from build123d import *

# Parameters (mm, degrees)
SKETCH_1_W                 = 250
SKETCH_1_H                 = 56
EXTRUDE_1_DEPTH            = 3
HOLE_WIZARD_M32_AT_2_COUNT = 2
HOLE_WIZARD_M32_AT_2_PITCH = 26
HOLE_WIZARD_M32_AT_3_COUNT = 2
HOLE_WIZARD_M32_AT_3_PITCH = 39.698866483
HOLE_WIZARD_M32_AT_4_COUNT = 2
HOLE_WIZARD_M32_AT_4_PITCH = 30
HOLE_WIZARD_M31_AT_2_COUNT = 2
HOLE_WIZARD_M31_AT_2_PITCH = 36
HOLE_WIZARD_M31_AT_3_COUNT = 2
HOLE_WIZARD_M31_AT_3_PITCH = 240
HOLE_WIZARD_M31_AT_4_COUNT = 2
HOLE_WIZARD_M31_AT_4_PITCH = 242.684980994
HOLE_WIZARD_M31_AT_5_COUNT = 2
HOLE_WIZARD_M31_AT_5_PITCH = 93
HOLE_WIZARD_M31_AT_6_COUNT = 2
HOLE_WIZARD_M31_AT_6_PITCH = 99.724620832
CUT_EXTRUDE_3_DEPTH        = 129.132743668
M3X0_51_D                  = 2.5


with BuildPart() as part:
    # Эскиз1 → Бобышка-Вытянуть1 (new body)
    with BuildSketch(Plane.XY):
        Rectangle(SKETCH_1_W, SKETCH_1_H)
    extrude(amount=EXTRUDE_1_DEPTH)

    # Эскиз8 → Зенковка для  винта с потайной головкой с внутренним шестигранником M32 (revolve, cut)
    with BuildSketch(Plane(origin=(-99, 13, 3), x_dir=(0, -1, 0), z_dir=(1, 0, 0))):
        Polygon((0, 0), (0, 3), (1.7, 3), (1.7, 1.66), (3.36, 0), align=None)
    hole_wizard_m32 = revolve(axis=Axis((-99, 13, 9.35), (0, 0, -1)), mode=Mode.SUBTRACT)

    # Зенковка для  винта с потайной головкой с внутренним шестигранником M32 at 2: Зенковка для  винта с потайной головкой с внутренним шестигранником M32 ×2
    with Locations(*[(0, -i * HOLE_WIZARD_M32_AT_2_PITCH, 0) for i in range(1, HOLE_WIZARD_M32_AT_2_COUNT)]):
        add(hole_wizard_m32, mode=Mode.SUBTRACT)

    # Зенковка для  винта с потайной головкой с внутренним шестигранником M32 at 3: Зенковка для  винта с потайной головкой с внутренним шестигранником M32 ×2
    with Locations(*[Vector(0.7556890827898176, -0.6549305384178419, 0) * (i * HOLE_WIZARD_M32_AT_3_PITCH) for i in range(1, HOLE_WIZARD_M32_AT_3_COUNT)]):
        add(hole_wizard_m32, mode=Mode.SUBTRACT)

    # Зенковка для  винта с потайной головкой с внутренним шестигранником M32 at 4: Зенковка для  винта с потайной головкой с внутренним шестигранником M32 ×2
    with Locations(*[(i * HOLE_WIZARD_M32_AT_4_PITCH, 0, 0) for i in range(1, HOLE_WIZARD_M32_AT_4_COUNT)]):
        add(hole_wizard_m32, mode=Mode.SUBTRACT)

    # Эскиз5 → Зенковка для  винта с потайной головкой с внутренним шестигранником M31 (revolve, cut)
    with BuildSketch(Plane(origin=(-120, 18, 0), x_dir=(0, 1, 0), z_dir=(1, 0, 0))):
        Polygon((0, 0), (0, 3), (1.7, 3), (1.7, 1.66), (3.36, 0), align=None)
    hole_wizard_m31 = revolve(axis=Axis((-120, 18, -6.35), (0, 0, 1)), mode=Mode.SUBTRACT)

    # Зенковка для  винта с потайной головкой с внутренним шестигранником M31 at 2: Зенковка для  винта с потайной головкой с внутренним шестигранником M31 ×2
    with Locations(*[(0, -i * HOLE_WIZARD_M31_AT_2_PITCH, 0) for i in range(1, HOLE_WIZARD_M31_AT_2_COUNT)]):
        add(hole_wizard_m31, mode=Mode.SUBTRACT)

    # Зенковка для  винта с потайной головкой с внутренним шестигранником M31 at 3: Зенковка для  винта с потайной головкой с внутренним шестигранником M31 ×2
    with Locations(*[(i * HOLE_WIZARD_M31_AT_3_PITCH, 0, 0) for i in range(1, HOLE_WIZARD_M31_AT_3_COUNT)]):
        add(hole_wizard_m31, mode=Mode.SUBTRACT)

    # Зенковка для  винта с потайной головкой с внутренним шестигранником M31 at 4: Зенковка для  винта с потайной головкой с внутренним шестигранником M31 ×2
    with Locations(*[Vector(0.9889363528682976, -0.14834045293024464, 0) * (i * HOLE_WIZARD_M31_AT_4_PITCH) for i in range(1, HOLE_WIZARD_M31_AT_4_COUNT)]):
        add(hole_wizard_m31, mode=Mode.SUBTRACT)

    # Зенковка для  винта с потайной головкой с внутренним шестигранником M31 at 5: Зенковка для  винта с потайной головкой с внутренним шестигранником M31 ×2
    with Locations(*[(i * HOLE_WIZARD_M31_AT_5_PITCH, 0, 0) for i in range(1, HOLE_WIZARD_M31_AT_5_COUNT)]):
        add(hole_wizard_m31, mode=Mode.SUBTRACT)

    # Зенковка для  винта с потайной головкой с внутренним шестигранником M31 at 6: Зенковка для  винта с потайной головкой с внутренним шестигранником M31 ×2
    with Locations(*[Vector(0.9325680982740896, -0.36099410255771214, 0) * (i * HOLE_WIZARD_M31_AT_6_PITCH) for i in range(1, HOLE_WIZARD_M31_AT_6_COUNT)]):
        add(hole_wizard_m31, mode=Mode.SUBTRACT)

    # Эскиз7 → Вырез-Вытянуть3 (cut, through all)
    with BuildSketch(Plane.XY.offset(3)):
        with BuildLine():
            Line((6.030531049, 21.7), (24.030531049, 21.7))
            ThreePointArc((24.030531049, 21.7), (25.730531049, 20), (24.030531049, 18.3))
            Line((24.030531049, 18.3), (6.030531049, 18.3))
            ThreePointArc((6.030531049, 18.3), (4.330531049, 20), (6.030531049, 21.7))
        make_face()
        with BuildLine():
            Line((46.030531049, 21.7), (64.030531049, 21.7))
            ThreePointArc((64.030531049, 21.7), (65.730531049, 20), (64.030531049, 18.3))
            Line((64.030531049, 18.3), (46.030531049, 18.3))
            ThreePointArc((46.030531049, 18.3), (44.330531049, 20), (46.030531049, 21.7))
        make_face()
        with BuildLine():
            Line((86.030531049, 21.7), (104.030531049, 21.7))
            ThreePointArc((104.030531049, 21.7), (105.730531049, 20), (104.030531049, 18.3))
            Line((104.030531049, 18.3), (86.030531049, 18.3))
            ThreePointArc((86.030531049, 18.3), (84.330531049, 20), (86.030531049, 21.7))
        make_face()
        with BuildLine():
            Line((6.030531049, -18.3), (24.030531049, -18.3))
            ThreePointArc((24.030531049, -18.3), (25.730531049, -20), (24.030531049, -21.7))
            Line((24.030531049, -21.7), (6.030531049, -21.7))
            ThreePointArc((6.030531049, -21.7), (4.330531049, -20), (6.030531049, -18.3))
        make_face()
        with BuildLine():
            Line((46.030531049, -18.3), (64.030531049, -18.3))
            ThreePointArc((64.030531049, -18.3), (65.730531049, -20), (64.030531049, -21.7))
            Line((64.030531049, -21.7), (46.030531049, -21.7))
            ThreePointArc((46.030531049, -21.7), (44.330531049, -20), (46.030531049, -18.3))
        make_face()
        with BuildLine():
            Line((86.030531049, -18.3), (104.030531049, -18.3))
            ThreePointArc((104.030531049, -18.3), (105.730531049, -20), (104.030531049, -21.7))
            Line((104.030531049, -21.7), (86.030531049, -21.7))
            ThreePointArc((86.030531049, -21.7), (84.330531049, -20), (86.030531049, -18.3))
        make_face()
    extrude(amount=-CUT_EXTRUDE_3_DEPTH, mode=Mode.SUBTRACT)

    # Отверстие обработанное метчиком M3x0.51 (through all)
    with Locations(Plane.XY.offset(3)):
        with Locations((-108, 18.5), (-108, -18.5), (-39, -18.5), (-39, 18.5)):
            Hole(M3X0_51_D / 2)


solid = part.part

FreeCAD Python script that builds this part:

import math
import FreeCAD as App
import Part
import Sketcher
Q = App.Units.Quantity


def add_polygon(sketch, points):
    """Adds a closed chain of lines whose ends are joined by coincident constraints."""
    first, n = sketch.GeometryCount, len(points)
    for a, b in zip(points, points[1:] + points[:1]):
        sketch.addGeometry(Part.LineSegment(App.Vector(*a, 0), App.Vector(*b, 0)), False)
    for i in range(n):
        sketch.addConstraint(Sketcher.Constraint("Coincident", first + i, 2, first + (i + 1) % n, 1))

doc = App.newDocument("Part")
params = doc.addObject("Spreadsheet::Sheet", "Params")
for row, (alias, value) in enumerate([
    ("sketch1_width", "250 mm"),
    ("sketch1_height", "56 mm"),
    ("pad1_length", "3 mm"),
    ("sketch2_height", "3 mm"),
    ("sketch2_width", "1.7 mm"),
    ("sketch2_width2", "3.36 mm"),
    ("groove_angle", "360 deg"),
    ("linearpattern_pitch", "26 mm"),
    ("linearpattern2_pitch", "39.698866 mm"),
    ("linearpattern3_pitch", "30 mm"),
    ("sketch3_height", "3 mm"),
    ("sketch3_width", "1.7 mm"),
    ("sketch3_width2", "3.36 mm"),
    ("groove2_angle", "360 deg"),
    ("linearpattern4_pitch", "36 mm"),
    ("linearpattern5_pitch", "240 mm"),
    ("linearpattern6_pitch", "242.684981 mm"),
    ("linearpattern7_pitch", "93 mm"),
    ("linearpattern8_pitch", "99.724621 mm"),
    ("sketch4_radius", "1.7 mm"),
    ("sketch4_width", "18 mm"),
    ("sketch5_diameter", "2.5 mm"),
    ("hole_diameter", "2.5 mm"),
], start=1):
    params.set(f"A{row}", alias)
    params.set(f"B{row}", "=" + value)
    params.setAlias(f"B{row}", alias)

body = doc.addObject("PartDesign::Body", "Body")

sketch1 = doc.addObject("Sketcher::SketchObject", "Sketch")
body.addObject(sketch1)
sketch1.AttachmentSupport = (doc.XY_Plane, [""])
sketch1.MapMode = "FlatFace"
add_polygon(sketch1, [(-125, 28), (-125, -28), (125, -28), (125, 28)])
sketch1.addConstraint([
    Sketcher.Constraint("Vertical", 0),
    Sketcher.Constraint("Horizontal", 1),
    Sketcher.Constraint("Vertical", 2),
    Sketcher.Constraint("Horizontal", 3),
    Sketcher.Constraint("Symmetric", 0, 2, 2, 2, -1, 1),
    Sketcher.Constraint("DistanceX", 1, 1, 1, 2, Q("250 mm")),
    Sketcher.Constraint("DistanceY", 0, 2, 0, 1, Q("56 mm")),
])
sketch1.setExpression("Constraints[9]", "Params.sketch1_width")
sketch1.setExpression("Constraints[10]", "Params.sketch1_height")
pad1 = doc.addObject("PartDesign::Pad", "Pad")
body.addObject(pad1)
pad1.Profile = sketch1
pad1.setExpression("Length", "Params.pad1_length")

sketch2 = doc.addObject("Sketcher::SketchObject", "Sketch001")
body.addObject(sketch2)
sketch2.AttachmentSupport = (doc.YZ_Plane, [""])
sketch2.MapMode = "FlatFace"
sketch2.AttachmentOffset = App.Placement(App.Vector(0, 0, -99), App.Rotation())
add_polygon(sketch2, [(13, 0), (13, 3), (9.64, 3), (11.3, 1.34), (11.3, 0)])
sketch2.addGeometry(Part.LineSegment(App.Vector(13, 3, 0), App.Vector(13, 0, 0)), True)
sketch2.addConstraint([
    Sketcher.Constraint("Vertical", 0),
    Sketcher.Constraint("Horizontal", 1),
    Sketcher.Constraint("Vertical", 3),
    Sketcher.Constraint("Horizontal", 4),
    Sketcher.Constraint("Vertical", 5),
    Sketcher.Constraint("Coincident", 5, 1, 0, 2),
    Sketcher.Constraint("PointOnObject", 3, 2, -1),
    Sketcher.Constraint("PointOnObject", 5, 2, -1),
    Sketcher.Constraint("DistanceY", 0, 1, 0, 2, Q("3 mm")),
    Sketcher.Constraint("Angle", 2, Q("-45 deg")),
    Sketcher.Constraint("DistanceX", 4, 1, 4, 2, Q("1.7 mm")),
    Sketcher.Constraint("DistanceX", -1, 1, 0, 2, Q("13 mm")),
    Sketcher.Constraint("DistanceX", 1, 2, 1, 1, Q("3.36 mm")),
])
sketch2.setExpression("Constraints[13]", "Params.sketch2_height")
sketch2.setExpression("Constraints[15]", "Params.sketch2_width")
sketch2.setExpression("Constraints[17]", "Params.sketch2_width2")
groove = doc.addObject("PartDesign::Groove", "Groove")
body.addObject(groove)
groove.Profile = sketch2
groove.ReferenceAxis = (sketch2, ["Axis0"])
groove.setExpression("Angle", "Params.groove_angle")
doc.recompute()

linearpattern = doc.addObject("PartDesign::LinearPattern", "LinearPattern")
body.addObject(linearpattern)
linearpattern.Originals = [groove]
linearpattern.Direction = (doc.Y_Axis, [""])
linearpattern.Mode = "offset"
linearpattern.setExpression("Offset", "Params.linearpattern_pitch")
linearpattern.Occurrences = 2
linearpattern.Reversed = True
body.Tip = linearpattern
doc.recompute()

datumline = doc.addObject("PartDesign::Line", "DatumLine")
body.addObject(datumline)
datumline.Placement = App.Placement(App.Vector(0, 0, 0), App.Rotation(App.Vector(0, 0, 1), App.Vector(0.755689083, -0.654930538, 0)))
linearpattern2 = doc.addObject("PartDesign::LinearPattern", "LinearPattern001")
body.addObject(linearpattern2)
linearpattern2.Originals = [groove]
linearpattern2.Direction = (datumline, [""])
linearpattern2.Mode = "offset"
linearpattern2.setExpression("Offset", "Params.linearpattern2_pitch")
linearpattern2.Occurrences = 2
body.Tip = linearpattern2
doc.recompute()

linearpattern3 = doc.addObject("PartDesign::LinearPattern", "LinearPattern002")
body.addObject(linearpattern3)
linearpattern3.Originals = [groove]
linearpattern3.Direction = (doc.X_Axis, [""])
linearpattern3.Mode = "offset"
linearpattern3.setExpression("Offset", "Params.linearpattern3_pitch")
linearpattern3.Occurrences = 2
body.Tip = linearpattern3

sketch3 = doc.addObject("Sketcher::SketchObject", "Sketch002")
body.addObject(sketch3)
sketch3.AttachmentSupport = (doc.YZ_Plane, [""])
sketch3.MapMode = "FlatFace"
sketch3.AttachmentOffset = App.Placement(App.Vector(0, 0, -120), App.Rotation())
add_polygon(sketch3, [(18, 3), (18, 0), (21.36, 0), (19.7, 1.66), (19.7, 3)])
sketch3.addGeometry(Part.LineSegment(App.Vector(18, 0, 0), App.Vector(18, 3, 0)), True)
sketch3.addConstraint([
    Sketcher.Constraint("Vertical", 0),
    Sketcher.Constraint("Horizontal", 1),
    Sketcher.Constraint("Vertical", 3),
    Sketcher.Constraint("Horizontal", 4),
    Sketcher.Constraint("Vertical", 5),
    Sketcher.Constraint("Coincident", 5, 1, 0, 2),
    Sketcher.Constraint("PointOnObject", 0, 2, -1),
    Sketcher.Constraint("Horizontal", 3, 2, 5, 2),
    Sketcher.Constraint("DistanceY", 0, 2, 0, 1, Q("3 mm")),
    Sketcher.Constraint("Angle", 2, Q("135 deg")),
    Sketcher.Constraint("DistanceX", 4, 2, 4, 1, Q("1.7 mm")),
    Sketcher.Constraint("DistanceX", -1, 1, 0, 2, Q("18 mm")),
    Sketcher.Constraint("DistanceX", 1, 1, 1, 2, Q("3.36 mm")),
])
sketch3.setExpression("Constraints[13]", "Params.sketch3_height")
sketch3.setExpression("Constraints[15]", "Params.sketch3_width")
sketch3.setExpression("Constraints[17]", "Params.sketch3_width2")
groove2 = doc.addObject("PartDesign::Groove", "Groove001")
body.addObject(groove2)
groove2.Profile = sketch3
groove2.ReferenceAxis = (sketch3, ["Axis0"])
groove2.setExpression("Angle", "Params.groove2_angle")
doc.recompute()

linearpattern4 = doc.addObject("PartDesign::LinearPattern", "LinearPattern003")
body.addObject(linearpattern4)
linearpattern4.Originals = [groove2]
linearpattern4.Direction = (doc.Y_Axis, [""])
linearpattern4.Mode = "offset"
linearpattern4.setExpression("Offset", "Params.linearpattern4_pitch")
linearpattern4.Occurrences = 2
linearpattern4.Reversed = True
body.Tip = linearpattern4
doc.recompute()

linearpattern5 = doc.addObject("PartDesign::LinearPattern", "LinearPattern004")
body.addObject(linearpattern5)
linearpattern5.Originals = [groove2]
linearpattern5.Direction = (doc.X_Axis, [""])
linearpattern5.Mode = "offset"
linearpattern5.setExpression("Offset", "Params.linearpattern5_pitch")
linearpattern5.Occurrences = 2
body.Tip = linearpattern5
doc.recompute()

datumline2 = doc.addObject("PartDesign::Line", "DatumLine001")
body.addObject(datumline2)
datumline2.Placement = App.Placement(App.Vector(0, 0, 0), App.Rotation(App.Vector(0, 0, 1), App.Vector(0.988936353, -0.148340453, 0)))
linearpattern6 = doc.addObject("PartDesign::LinearPattern", "LinearPattern005")
body.addObject(linearpattern6)
linearpattern6.Originals = [groove2]
linearpattern6.Direction = (datumline2, [""])
linearpattern6.Mode = "offset"
linearpattern6.setExpression("Offset", "Params.linearpattern6_pitch")
linearpattern6.Occurrences = 2
body.Tip = linearpattern6
doc.recompute()

linearpattern7 = doc.addObject("PartDesign::LinearPattern", "LinearPattern006")
body.addObject(linearpattern7)
linearpattern7.Originals = [groove2]
linearpattern7.Direction = (doc.X_Axis, [""])
linearpattern7.Mode = "offset"
linearpattern7.setExpression("Offset", "Params.linearpattern7_pitch")
linearpattern7.Occurrences = 2
body.Tip = linearpattern7
doc.recompute()

datumline3 = doc.addObject("PartDesign::Line", "DatumLine002")
body.addObject(datumline3)
datumline3.Placement = App.Placement(App.Vector(0, 0, 0), App.Rotation(App.Vector(0, 0, 1), App.Vector(0.932568098, -0.360994103, 0)))
linearpattern8 = doc.addObject("PartDesign::LinearPattern", "LinearPattern007")
body.addObject(linearpattern8)
linearpattern8.Originals = [groove2]
linearpattern8.Direction = (datumline3, [""])
linearpattern8.Mode = "offset"
linearpattern8.setExpression("Offset", "Params.linearpattern8_pitch")
linearpattern8.Occurrences = 2
body.Tip = linearpattern8

sketch4 = doc.addObject("Sketcher::SketchObject", "Sketch003")
body.addObject(sketch4)
sketch4.AttachmentSupport = (doc.XY_Plane, [""])
sketch4.MapMode = "FlatFace"
sketch4.AttachmentOffset = App.Placement(App.Vector(0, 0, 3), App.Rotation())
sketch4.addGeometry([
    Part.LineSegment(App.Vector(24.030531, 21.7, 0), App.Vector(6.030531, 21.7, 0)),
    Part.ArcOfCircle(Part.Circle(App.Vector(6.030531, 20, 0), App.Vector(0, 0, 1), 1.7), math.radians(90), math.radians(270)),
    Part.LineSegment(App.Vector(6.030531, 18.3, 0), App.Vector(24.030531, 18.3, 0)),
    Part.ArcOfCircle(Part.Circle(App.Vector(24.030531, 20, 0), App.Vector(0, 0, 1), 1.7), math.radians(-90), math.radians(90)),
    Part.LineSegment(App.Vector(64.030531, 21.7, 0), App.Vector(46.030531, 21.7, 0)),
    Part.ArcOfCircle(Part.Circle(App.Vector(46.030531, 20, 0), App.Vector(0, 0, 1), 1.7), math.radians(90), math.radians(270)),
    Part.LineSegment(App.Vector(46.030531, 18.3, 0), App.Vector(64.030531, 18.3, 0)),
    Part.ArcOfCircle(Part.Circle(App.Vector(64.030531, 20, 0), App.Vector(0, 0, 1), 1.7), math.radians(-90), math.radians(90)),
    Part.LineSegment(App.Vector(104.030531, 21.7, 0), App.Vector(86.030531, 21.7, 0)),
    Part.ArcOfCircle(Part.Circle(App.Vector(86.030531, 20, 0), App.Vector(0, 0, 1), 1.7), math.radians(90), math.radians(270)),
    Part.LineSegment(App.Vector(86.030531, 18.3, 0), App.Vector(104.030531, 18.3, 0)),
    Part.ArcOfCircle(Part.Circle(App.Vector(104.030531, 20, 0), App.Vector(0, 0, 1), 1.7), math.radians(-90), math.radians(90)),
    Part.LineSegment(App.Vector(24.030531, -18.3, 0), App.Vector(6.030531, -18.3, 0)),
    Part.ArcOfCircle(Part.Circle(App.Vector(6.030531, -20, 0), App.Vector(0, 0, 1), 1.7), math.radians(90), math.radians(270)),
    Part.LineSegment(App.Vector(6.030531, -21.7, 0), App.Vector(24.030531, -21.7, 0)),
    Part.ArcOfCircle(Part.Circle(App.Vector(24.030531, -20, 0), App.Vector(0, 0, 1), 1.7), math.radians(-90), math.radians(90)),
    Part.LineSegment(App.Vector(64.030531, -18.3, 0), App.Vector(46.030531, -18.3, 0)),
    Part.ArcOfCircle(Part.Circle(App.Vector(46.030531, -20, 0), App.Vector(0, 0, 1), 1.7), math.radians(90), math.radians(270)),
    Part.LineSegment(App.Vector(46.030531, -21.7, 0), App.Vector(64.030531, -21.7, 0)),
    Part.ArcOfCircle(Part.Circle(App.Vector(64.030531, -20, 0), App.Vector(0, 0, 1), 1.7), math.radians(-90), math.radians(90)),
    Part.LineSegment(App.Vector(104.030531, -18.3, 0), App.Vector(86.030531, -18.3, 0)),
    Part.ArcOfCircle(Part.Circle(App.Vector(86.030531, -20, 0), App.Vector(0, 0, 1), 1.7), math.radians(90), math.radians(270)),
    Part.LineSegment(App.Vector(86.030531, -21.7, 0), App.Vector(104.030531, -21.7, 0)),
    Part.ArcOfCircle(Part.Circle(App.Vector(104.030531, -20, 0), App.Vector(0, 0, 1), 1.7), math.radians(-90), math.radians(90)),
], False)
sketch4.addConstraint([
    Sketcher.Constraint("Tangent", 0, 2, 1, 1),
    Sketcher.Constraint("Tangent", 1, 2, 2, 1),
    Sketcher.Constraint("Tangent", 2, 2, 3, 1),
    Sketcher.Constraint("Tangent", 3, 2, 0, 1),
    Sketcher.Constraint("Tangent", 4, 2, 5, 1),
    Sketcher.Constraint("Tangent", 5, 2, 6, 1),
    Sketcher.Constraint("Tangent", 6, 2, 7, 1),
    Sketcher.Constraint("Tangent", 7, 2, 4, 1),
    Sketcher.Constraint("Tangent", 8, 2, 9, 1),
    Sketcher.Constraint("Tangent", 9, 2, 10, 1),
    Sketcher.Constraint("Tangent", 10, 2, 11, 1),
    Sketcher.Constraint("Tangent", 11, 2, 8, 1),
    Sketcher.Constraint("Tangent", 12, 2, 13, 1),
    Sketcher.Constraint("Tangent", 13, 2, 14, 1),
    Sketcher.Constraint("Tangent", 14, 2, 15, 1),
    Sketcher.Constraint("Tangent", 15, 2, 12, 1),
    Sketcher.Constraint("Tangent", 16, 2, 17, 1),
    Sketcher.Constraint("Tangent", 17, 2, 18, 1),
    Sketcher.Constraint("Tangent", 18, 2, 19, 1),
    Sketcher.Constraint("Tangent", 19, 2, 16, 1),
    Sketcher.Constraint("Tangent", 20, 2, 21, 1),
    Sketcher.Constraint("Tangent", 21, 2, 22, 1),
    Sketcher.Constraint("Tangent", 22, 2, 23, 1),
    Sketcher.Constraint("Tangent", 23, 2, 20, 1),
    Sketcher.Constraint("Horizontal", 0),
    Sketcher.Constraint("Horizontal", 2),
    Sketcher.Constraint("Horizontal", 4),
    Sketcher.Constraint("Horizontal", 6),
    Sketcher.Constraint("Horizontal", 8),
    Sketcher.Constraint("Horizontal", 10),
    Sketcher.Constraint("Horizontal", 12),
    Sketcher.Constraint("Horizontal", 14),
    Sketcher.Constraint("Horizontal", 16),
    Sketcher.Constraint("Horizontal", 18),
    Sketcher.Constraint("Horizontal", 20),
    Sketcher.Constraint("Horizontal", 22),
    Sketcher.Constraint("Equal", 3, 5),
    Sketcher.Constraint("Equal", 7, 9),
    Sketcher.Constraint("Equal", 11, 13),
    Sketcher.Constraint("Equal", 15, 17),
    Sketcher.Constraint("Equal", 19, 21),
    Sketcher.Constraint("Symmetric", 1, 3, 13, 3, -1),
    Sketcher.Constraint("Symmetric", 5, 3, 17, 3, -1),
    Sketcher.Constraint("Symmetric", 9, 3, 21, 3, -1),
    Sketcher.Constraint("Horizontal", 3, 3, 5, 3),
    Sketcher.Constraint("Horizontal", 7, 3, 9, 3),
    Sketcher.Constraint("Vertical", 3, 3, 15, 3),
    Sketcher.Constraint("Vertical", 7, 3, 19, 3),
    Sketcher.Constraint("Vertical", 11, 3, 23, 3),
    Sketcher.Constraint("Equal", 2, 4),
    Sketcher.Constraint("Equal", 6, 8),
    Sketcher.Constraint("Radius", 1, Q("1.7 mm")),
    Sketcher.Constraint("DistanceX", 0, 2, 0, 1, Q("18 mm")),
    Sketcher.Constraint("DistanceY", -1, 1, 1, 3, Q("20 mm")),
    Sketcher.Constraint("DistanceX", 3, 3, 5, 3, Q("22 mm")),
    Sketcher.Constraint("DistanceX", 7, 3, 9, 3, Q("22 mm")),
    Sketcher.Constraint("DistanceX", -1, 1, 1, 3, Q("6.030531 mm")),
])
sketch4.setExpression("Constraints[51]", "Params.sketch4_radius")
sketch4.setExpression("Constraints[52]", "Params.sketch4_width")
pocket1 = doc.addObject("PartDesign::Pocket", "Pocket")
body.addObject(pocket1)
pocket1.Profile = sketch4
pocket1.Type = "ThroughAll"

sketch5 = doc.addObject("Sketcher::SketchObject", "Sketch004")
body.addObject(sketch5)
sketch5.AttachmentSupport = (doc.XY_Plane, [""])
sketch5.MapMode = "FlatFace"
sketch5.AttachmentOffset = App.Placement(App.Vector(0, 0, 3), App.Rotation())
sketch5.addGeometry([
    Part.Circle(App.Vector(-108, 18.5, 0), App.Vector(0, 0, 1), 1.25),
    Part.Circle(App.Vector(-108, -18.5, 0), App.Vector(0, 0, 1), 1.25),
    Part.Circle(App.Vector(-39, -18.5, 0), App.Vector(0, 0, 1), 1.25),
    Part.Circle(App.Vector(-39, 18.5, 0), App.Vector(0, 0, 1), 1.25),
], False)
sketch5.addConstraint([
    Sketcher.Constraint("Equal", 0, 1),
    Sketcher.Constraint("Equal", 1, 2),
    Sketcher.Constraint("Equal", 2, 3),
    Sketcher.Constraint("Symmetric", 0, 3, 1, 3, -1),
    Sketcher.Constraint("Symmetric", 2, 3, 3, 3, -1),
    Sketcher.Constraint("Horizontal", 1, 3, 2, 3),
    Sketcher.Constraint("Diameter", 0, Q("2.5 mm")),
    Sketcher.Constraint("DistanceX", 0, 3, -1, 1, Q("108 mm")),
    Sketcher.Constraint("DistanceX", 2, 3, -1, 1, Q("39 mm")),
    Sketcher.Constraint("DistanceY", 1, 3, 0, 3, Q("37 mm")),
])
sketch5.setExpression("Constraints[6]", "Params.sketch5_diameter")
doc.recompute()
hole = doc.addObject("PartDesign::Hole", "Hole")
body.addObject(hole)
hole.Profile = sketch5
hole.ThreadType = "None"
hole.setExpression("Diameter", "Params.hole_diameter")
hole.DepthType = "ThroughAll"

doc.recompute()
